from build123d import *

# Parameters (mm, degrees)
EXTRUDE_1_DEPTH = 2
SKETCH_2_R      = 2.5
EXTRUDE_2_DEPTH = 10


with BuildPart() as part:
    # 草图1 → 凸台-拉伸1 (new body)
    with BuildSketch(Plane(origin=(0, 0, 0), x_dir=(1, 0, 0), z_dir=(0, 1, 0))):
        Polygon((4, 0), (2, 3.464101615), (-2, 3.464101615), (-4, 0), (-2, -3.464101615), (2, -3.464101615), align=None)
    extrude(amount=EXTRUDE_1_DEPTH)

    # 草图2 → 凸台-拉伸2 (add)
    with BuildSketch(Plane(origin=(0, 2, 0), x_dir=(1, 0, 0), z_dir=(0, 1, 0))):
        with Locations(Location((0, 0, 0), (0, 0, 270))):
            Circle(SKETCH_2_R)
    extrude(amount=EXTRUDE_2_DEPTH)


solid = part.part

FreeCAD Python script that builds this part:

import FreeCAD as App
import Part
import Sketcher

V = App.Vector
Q = App.Units.Quantity


def add_polygon(sketch, points):
    """Adds a closed chain of lines whose ends are joined by coincident constraints."""
    first, n = sketch.GeometryCount, len(points)
    for a, b in zip(points, points[1:] + points[:1]):
        sketch.addGeometry(Part.LineSegment(App.Vector(*a, 0), App.Vector(*b, 0)), False)
    for i in range(n):
        sketch.addConstraint(Sketcher.Constraint("Coincident", first + i, 2, first + (i + 1) % n, 1))

doc = App.newDocument("Part")
body = doc.addObject("PartDesign::Body", "Body")

# Sketch on XZ plane
sketch1 = body.newObject("Sketcher::SketchObject", "Sketch")
sketch1.AttachmentSupport = (doc.getObject("XZ_Plane"), [""])
sketch1.MapMode = "FlatFace"
add_polygon(sketch1, [(4, 0), (2, -3.464102), (-2, -3.464102), (-4, 0), (-2, 3.464102), (2, 3.464102)])  # lines 0-5
sketch1.addConstraint([
    Sketcher.Constraint("Horizontal", 1),
    Sketcher.Constraint("Horizontal", 4),
    Sketcher.Constraint("Symmetric", 0, 2, 3, 2, -1, 1),
    Sketcher.Constraint("Symmetric", 2, 2, 5, 2, -1, 1),
    Sketcher.Constraint("PointOnObject", 2, 2, -1),
    Sketcher.Constraint("Parallel", 2, 5),
    Sketcher.Constraint("Vertical", 1, 2, 3, 2),
    Sketcher.Constraint("DistanceX", 1, 2, 1, 1, 4.0),
    Sketcher.Constraint("Angle", 0, Q("-120 deg")),
    Sketcher.Constraint("Distance", 0, 4.0),
])
pad1 = body.newObject("PartDesign::Pad", "Pad")
pad1.Profile = sketch1
pad1.Length = 2
pad1.Reversed = True

# Sketch on XZ plane
sketch2 = body.newObject("Sketcher::SketchObject", "Sketch001")
sketch2.AttachmentSupport = (doc.getObject("XZ_Plane"), [""])
sketch2.MapMode = "FlatFace"
sketch2.AttachmentOffset = App.Placement(V(0, 0, -2), App.Rotation())
sketch2.addGeometry(Part.Circle(V(0, 0, 0), V(0, 0, 1), 2.5), False)
sketch2.addConstraint([
    Sketcher.Constraint("Coincident", 0, 3, -1, 1),
    Sketcher.Constraint("Diameter", 0, 5.0),
])
pad2 = body.newObject("PartDesign::Pad", "Pad001")
pad2.Profile = sketch2
pad2.Length = 10
pad2.Reversed = True

doc.recompute()
